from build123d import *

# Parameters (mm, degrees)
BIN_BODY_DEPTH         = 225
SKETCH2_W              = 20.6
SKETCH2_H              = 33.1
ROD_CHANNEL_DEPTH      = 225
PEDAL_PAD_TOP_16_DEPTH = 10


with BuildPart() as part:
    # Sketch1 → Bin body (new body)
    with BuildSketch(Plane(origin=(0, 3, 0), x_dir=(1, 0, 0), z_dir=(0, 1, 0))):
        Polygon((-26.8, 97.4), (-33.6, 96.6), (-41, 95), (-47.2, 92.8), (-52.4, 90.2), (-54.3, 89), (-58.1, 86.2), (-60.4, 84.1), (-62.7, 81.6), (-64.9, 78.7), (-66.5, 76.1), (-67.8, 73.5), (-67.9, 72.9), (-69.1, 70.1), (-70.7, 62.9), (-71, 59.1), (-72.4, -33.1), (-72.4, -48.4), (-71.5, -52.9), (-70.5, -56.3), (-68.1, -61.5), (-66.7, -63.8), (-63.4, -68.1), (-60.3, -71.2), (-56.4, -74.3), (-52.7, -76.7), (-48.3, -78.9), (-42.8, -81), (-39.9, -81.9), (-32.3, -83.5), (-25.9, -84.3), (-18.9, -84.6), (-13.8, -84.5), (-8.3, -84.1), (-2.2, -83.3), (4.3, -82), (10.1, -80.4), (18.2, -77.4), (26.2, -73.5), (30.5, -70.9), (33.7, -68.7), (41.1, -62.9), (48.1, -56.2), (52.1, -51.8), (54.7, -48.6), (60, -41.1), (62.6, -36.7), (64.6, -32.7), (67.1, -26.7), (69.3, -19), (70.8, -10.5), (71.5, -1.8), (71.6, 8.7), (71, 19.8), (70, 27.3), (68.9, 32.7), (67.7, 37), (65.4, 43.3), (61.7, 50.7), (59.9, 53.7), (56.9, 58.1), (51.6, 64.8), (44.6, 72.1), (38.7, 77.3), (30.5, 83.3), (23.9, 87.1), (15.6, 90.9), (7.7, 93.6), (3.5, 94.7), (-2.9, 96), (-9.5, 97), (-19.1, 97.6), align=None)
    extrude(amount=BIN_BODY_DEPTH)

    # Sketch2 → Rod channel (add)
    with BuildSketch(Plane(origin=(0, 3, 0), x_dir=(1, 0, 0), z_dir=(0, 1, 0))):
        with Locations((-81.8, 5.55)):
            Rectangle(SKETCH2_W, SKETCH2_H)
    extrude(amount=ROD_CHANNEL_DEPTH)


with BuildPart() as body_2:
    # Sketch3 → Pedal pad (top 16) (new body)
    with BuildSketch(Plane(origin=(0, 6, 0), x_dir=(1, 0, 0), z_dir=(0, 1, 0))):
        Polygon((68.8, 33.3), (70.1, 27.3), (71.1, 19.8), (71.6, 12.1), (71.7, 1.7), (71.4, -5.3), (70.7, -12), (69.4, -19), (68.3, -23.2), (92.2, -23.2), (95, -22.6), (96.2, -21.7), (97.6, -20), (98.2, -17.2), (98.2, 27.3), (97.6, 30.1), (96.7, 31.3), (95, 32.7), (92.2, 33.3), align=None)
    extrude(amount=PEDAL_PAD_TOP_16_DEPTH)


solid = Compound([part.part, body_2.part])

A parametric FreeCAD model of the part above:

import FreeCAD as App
import Part
import Sketcher
from FreeCAD import Vector
Q = App.Units.Quantity


def add_polygon(sketch, points):
    """Adds a closed chain of lines whose ends are joined by coincident constraints."""
    first, n = sketch.GeometryCount, len(points)
    for a, b in zip(points, points[1:] + points[:1]):
        sketch.addGeometry(Part.LineSegment(App.Vector(*a, 0), App.Vector(*b, 0)), False)
    for i in range(n):
        sketch.addConstraint(Sketcher.Constraint("Coincident", first + i, 2, first + (i + 1) % n, 1))

doc = App.newDocument("Part")
body = doc.addObject("PartDesign::Body", "Body")

sketch1 = body.newObject("Sketcher::SketchObject", "Sketch")
sketch1.AttachmentSupport = (doc.getObject("XZ_Plane"), [""])
sketch1.MapMode = "FlatFace"
sketch1.AttachmentOffset = App.Placement(Vector(0, 0, -3), App.Rotation())
add_polygon(sketch1, [(-26.8, -97.4), (-33.6, -96.6), (-41, -95), (-47.2, -92.8), (-52.4, -90.2), (-54.3, -89), (-58.1, -86.2), (-60.4, -84.1), (-62.7, -81.6), (-64.9, -78.7), (-66.5, -76.1), (-67.8, -73.5), (-67.9, -72.9), (-69.1, -70.1), (-70.7, -62.9), (-71, -59.1), (-72.4, 33.1), (-72.4, 48.4), (-71.5, 52.9), (-70.5, 56.3), (-68.1, 61.5), (-66.7, 63.8), (-63.4, 68.1), (-60.3, 71.2), (-56.4, 74.3), (-52.7, 76.7), (-48.3, 78.9), (-42.8, 81), (-39.9, 81.9), (-32.3, 83.5), (-25.9, 84.3), (-18.9, 84.6), (-13.8, 84.5), (-8.3, 84.1), (-2.2, 83.3), (4.3, 82), (10.1, 80.4), (18.2, 77.4), (26.2, 73.5), (30.5, 70.9), (33.7, 68.7), (41.1, 62.9), (48.1, 56.2), (52.1, 51.8), (54.7, 48.6), (60, 41.1), (62.6, 36.7), (64.6, 32.7), (67.1, 26.7), (69.3, 19), (70.8, 10.5), (71.5, 1.8), (71.6, -8.7), (71, -19.8), (70, -27.3), (68.9, -32.7), (67.7, -37), (65.4, -43.3), (61.7, -50.7), (59.9, -53.7), (56.9, -58.1), (51.6, -64.8), (44.6, -72.1), (38.7, -77.3), (30.5, -83.3), (23.9, -87.1), (15.6, -90.9), (7.7, -93.6), (3.5, -94.7), (-2.9, -96), (-9.5, -97), (-19.1, -97.6)])
sketch1.addConstraint([
    Sketcher.Constraint("Vertical", 16),
    Sketcher.Constraint("Perpendicular", 10, 25),
    Sketcher.Constraint("Perpendicular", 17, 34),
    Sketcher.Constraint("Perpendicular", 25, 46),
    Sketcher.Constraint("Perpendicular", 3, 57),
    Sketcher.Constraint("Vertical", 38, 2, 63, 2),
    Sketcher.Constraint("Angle", 22, Q("45 deg")),
    Sketcher.Constraint("DistanceY", 16, 1, 16, 2, Q("15.3 mm")),
    Sketcher.Constraint("DistanceX", 1, 2, -1, 1, Q("41 mm")),
    Sketcher.Constraint("DistanceY", 1, 2, -1, 1, Q("95 mm")),
    Sketcher.Constraint("DistanceY", 4, 2, -1, 1, Q("89 mm")),
    Sketcher.Constraint("DistanceX", 14, 2, -1, 1, Q("71 mm")),
    Sketcher.Constraint("DistanceY", -1, 1, 26, 2, Q("81 mm")),
    Sketcher.Constraint("DistanceY", -1, 1, 34, 2, Q("82 mm")),
    Sketcher.Constraint("DistanceX", -1, 1, 44, 2, Q("60 mm")),
    Sketcher.Constraint("DistanceY", -1, 1, 48, 2, Q("19 mm")),
    Sketcher.Constraint("DistanceX", -1, 1, 52, 2, Q("71 mm")),
    Sketcher.Constraint("DistanceX", -1, 1, 53, 2, Q("70 mm")),
    Sketcher.Constraint("DistanceY", 55, 2, -1, 1, Q("37 mm")),
    Sketcher.Constraint("DistanceY", 68, 2, -1, 1, Q("96 mm")),
    Sketcher.Constraint("DistanceY", 69, 2, -1, 1, Q("97 mm")),
    Sketcher.Constraint("Distance", 37, Q("8.9 mm")),
    Sketcher.Constraint("Distance", 47, Q("6.5 mm")),
    Sketcher.Constraint("DistanceX", 0, 2, -1, 1, Q("33.6 mm")),
    Sketcher.Constraint("DistanceY", 0, 2, -1, 1, Q("96.6 mm")),
    Sketcher.Constraint("DistanceX", 2, 2, -1, 1, Q("47.2 mm")),
    Sketcher.Constraint("DistanceY", 2, 2, -1, 1, Q("92.8 mm")),
    Sketcher.Constraint("DistanceX", 3, 2, -1, 1, Q("52.4 mm")),
    Sketcher.Constraint("DistanceY", 3, 2, -1, 1, Q("90.2 mm")),
    Sketcher.Constraint("DistanceX", 4, 2, -1, 1, Q("54.3 mm")),
    Sketcher.Constraint("DistanceX", 5, 2, -1, 1, Q("58.1 mm")),
    Sketcher.Constraint("DistanceY", 5, 2, -1, 1, Q("86.2 mm")),
    Sketcher.Constraint("DistanceX", 6, 2, -1, 1, Q("60.4 mm")),
    Sketcher.Constraint("DistanceY", 6, 2, -1, 1, Q("84.1 mm")),
    Sketcher.Constraint("DistanceX", 7, 2, -1, 1, Q("62.7 mm")),
    Sketcher.Constraint("DistanceY", 7, 2, -1, 1, Q("81.6 mm")),
    Sketcher.Constraint("DistanceX", 8, 2, -1, 1, Q("64.9 mm")),
    Sketcher.Constraint("DistanceY", 8, 2, -1, 1, Q("78.7 mm")),
    Sketcher.Constraint("DistanceX", 9, 2, -1, 1, Q("66.5 mm")),
    Sketcher.Constraint("DistanceY", 9, 2, -1, 1, Q("76.1 mm")),
    Sketcher.Constraint("DistanceX", 10, 2, -1, 1, Q("67.8 mm")),
    Sketcher.Constraint("DistanceY", 10, 2, -1, 1, Q("73.5 mm")),
    Sketcher.Constraint("DistanceX", 11, 2, -1, 1, Q("67.9 mm")),
    Sketcher.Constraint("DistanceY", 11, 2, -1, 1, Q("72.9 mm")),
    Sketcher.Constraint("DistanceX", 12, 2, -1, 1, Q("69.1 mm")),
    Sketcher.Constraint("DistanceY", 12, 2, -1, 1, Q("70.1 mm")),
    Sketcher.Constraint("DistanceX", 13, 2, -1, 1, Q("70.7 mm")),
    Sketcher.Constraint("DistanceY", 13, 2, -1, 1, Q("62.9 mm")),
    Sketcher.Constraint("DistanceY", 14, 2, -1, 1, Q("59.1 mm")),
    Sketcher.Constraint("DistanceX", 15, 2, -1, 1, Q("72.4 mm")),
    Sketcher.Constraint("DistanceY", -1, 1, 15, 2, Q("33.1 mm")),
    Sketcher.Constraint("DistanceX", 17, 2, -1, 1, Q("71.5 mm")),
    Sketcher.Constraint("DistanceY", -1, 1, 17, 2, Q("52.9 mm")),
    Sketcher.Constraint("DistanceX", 18, 2, -1, 1, Q("70.5 mm")),
    Sketcher.Constraint("DistanceY", -1, 1, 18, 2, Q("56.3 mm")),
    Sketcher.Constraint("DistanceX", 19, 2, -1, 1, Q("68.1 mm")),
    Sketcher.Constraint("DistanceY", -1, 1, 19, 2, Q("61.5 mm")),
    Sketcher.Constraint("DistanceX", 20, 2, -1, 1, Q("66.7 mm")),
    Sketcher.Constraint("DistanceY", -1, 1, 20, 2, Q("63.8 mm")),
    Sketcher.Constraint("DistanceX", 21, 2, -1, 1, Q("63.4 mm")),
    Sketcher.Constraint("DistanceY", -1, 1, 21, 2, Q("68.1 mm")),
    Sketcher.Constraint("DistanceX", 22, 2, -1, 1, Q("60.3 mm")),
    Sketcher.Constraint("DistanceX", 23, 2, -1, 1, Q("56.4 mm")),
    Sketcher.Constraint("DistanceY", -1, 1, 23, 2, Q("74.3 mm")),
    Sketcher.Constraint("DistanceX", 24, 2, -1, 1, Q("52.7 mm")),
    Sketcher.Constraint("DistanceY", -1, 1, 24, 2, Q("76.7 mm")),
    Sketcher.Constraint("DistanceX", 25, 2, -1, 1, Q("48.3 mm")),
    Sketcher.Constraint("DistanceX", 26, 2, -1, 1, Q("42.8 mm")),
    Sketcher.Constraint("DistanceX", 27, 2, -1, 1, Q("39.9 mm")),
    Sketcher.Constraint("DistanceY", -1, 1, 27, 2, Q("81.9 mm")),
    Sketcher.Constraint("DistanceX", 28, 2, -1, 1, Q("32.3 mm")),
    Sketcher.Constraint("DistanceY", -1, 1, 28, 2, Q("83.5 mm")),
    Sketcher.Constraint("DistanceX", 29, 2, -1, 1, Q("25.9 mm")),
    Sketcher.Constraint("DistanceY", -1, 1, 29, 2, Q("84.3 mm")),
    Sketcher.Constraint("DistanceX", 30, 2, -1, 1, Q("18.9 mm")),
    Sketcher.Constraint("DistanceY", -1, 1, 30, 2, Q("84.6 mm")),
    Sketcher.Constraint("DistanceX", 31, 2, -1, 1, Q("13.8 mm")),
    Sketcher.Constraint("DistanceY", -1, 1, 31, 2, Q("84.5 mm")),
    Sketcher.Constraint("DistanceX", 32, 2, -1, 1, Q("8.3 mm")),
    Sketcher.Constraint("DistanceY", -1, 1, 32, 2, Q("84.1 mm")),
    Sketcher.Constraint("DistanceX", 33, 2, -1, 1, Q("2.2 mm")),
    Sketcher.Constraint("DistanceY", -1, 1, 33, 2, Q("83.3 mm")),
    Sketcher.Constraint("DistanceX", -1, 1, 35, 2, Q("10.1 mm")),
    Sketcher.Constraint("DistanceY", -1, 1, 35, 2, Q("80.4 mm")),
    Sketcher.Constraint("DistanceX", -1, 1, 36, 2, Q("18.2 mm")),
    Sketcher.Constraint("DistanceY", -1, 1, 36, 2, Q("77.4 mm")),
    Sketcher.Constraint("DistanceX", -1, 1, 37, 2, Q("26.2 mm")),
    Sketcher.Constraint("DistanceX", -1, 1, 38, 2, Q("30.5 mm")),
    Sketcher.Constraint("DistanceY", -1, 1, 38, 2, Q("70.9 mm")),
    Sketcher.Constraint("DistanceX", -1, 1, 39, 2, Q("33.7 mm")),
    Sketcher.Constraint("DistanceY", -1, 1, 39, 2, Q("68.7 mm")),
    Sketcher.Constraint("DistanceX", -1, 1, 40, 2, Q("41.1 mm")),
    Sketcher.Constraint("DistanceY", -1, 1, 40, 2, Q("62.9 mm")),
    Sketcher.Constraint("DistanceX", -1, 1, 41, 2, Q("48.1 mm")),
    Sketcher.Constraint("DistanceY", -1, 1, 41, 2, Q("56.2 mm")),
    Sketcher.Constraint("DistanceX", -1, 1, 42, 2, Q("52.1 mm")),
    Sketcher.Constraint("DistanceY", -1, 1, 42, 2, Q("51.8 mm")),
    Sketcher.Constraint("DistanceX", -1, 1, 43, 2, Q("54.7 mm")),
    Sketcher.Constraint("DistanceY", -1, 1, 43, 2, Q("48.6 mm")),
    Sketcher.Constraint("DistanceY", -1, 1, 44, 2, Q("41.1 mm")),
    Sketcher.Constraint("DistanceX", -1, 1, 45, 2, Q("62.6 mm")),
    Sketcher.Constraint("DistanceY", -1, 1, 45, 2, Q("36.7 mm")),
    Sketcher.Constraint("DistanceX", -1, 1, 46, 2, Q("64.6 mm")),
    Sketcher.Constraint("DistanceX", -1, 1, 47, 2, Q("67.1 mm")),
    Sketcher.Constraint("DistanceX", -1, 1, 48, 2, Q("69.3 mm")),
    Sketcher.Constraint("DistanceX", -1, 1, 49, 2, Q("70.8 mm")),
    Sketcher.Constraint("DistanceY", -1, 1, 49, 2, Q("10.5 mm")),
    Sketcher.Constraint("DistanceX", -1, 1, 50, 2, Q("71.5 mm")),
    Sketcher.Constraint("DistanceY", -1, 1, 50, 2, Q("1.8 mm")),
    Sketcher.Constraint("DistanceX", -1, 1, 51, 2, Q("71.6 mm")),
    Sketcher.Constraint("DistanceY", 51, 2, -1, 1, Q("8.7 mm")),
    Sketcher.Constraint("DistanceY", 52, 2, -1, 1, Q("19.8 mm")),
    Sketcher.Constraint("DistanceY", 53, 2, -1, 1, Q("27.3 mm")),
    Sketcher.Constraint("DistanceX", -1, 1, 54, 2, Q("68.9 mm")),
    Sketcher.Constraint("DistanceY", 54, 2, -1, 1, Q("32.7 mm")),
    Sketcher.Constraint("DistanceX", -1, 1, 55, 2, Q("67.7 mm")),
    Sketcher.Constraint("DistanceX", -1, 1, 56, 2, Q("65.4 mm")),
    Sketcher.Constraint("DistanceY", 56, 2, -1, 1, Q("43.3 mm")),
    Sketcher.Constraint("DistanceX", -1, 1, 57, 2, Q("61.7 mm")),
    Sketcher.Constraint("DistanceX", -1, 1, 58, 2, Q("59.9 mm")),
    Sketcher.Constraint("DistanceY", 58, 2, -1, 1, Q("53.7 mm")),
    Sketcher.Constraint("DistanceX", -1, 1, 59, 2, Q("56.9 mm")),
    Sketcher.Constraint("DistanceY", 59, 2, -1, 1, Q("58.1 mm")),
    Sketcher.Constraint("DistanceX", -1, 1, 60, 2, Q("51.6 mm")),
    Sketcher.Constraint("DistanceY", 60, 2, -1, 1, Q("64.8 mm")),
    Sketcher.Constraint("DistanceX", -1, 1, 61, 2, Q("44.6 mm")),
    Sketcher.Constraint("DistanceY", 61, 2, -1, 1, Q("72.1 mm")),
    Sketcher.Constraint("DistanceX", -1, 1, 62, 2, Q("38.7 mm")),
    Sketcher.Constraint("DistanceY", 62, 2, -1, 1, Q("77.3 mm")),
    Sketcher.Constraint("DistanceY", 63, 2, -1, 1, Q("83.3 mm")),
    Sketcher.Constraint("DistanceX", -1, 1, 64, 2, Q("23.9 mm")),
    Sketcher.Constraint("DistanceY", 64, 2, -1, 1, Q("87.1 mm")),
    Sketcher.Constraint("DistanceX", -1, 1, 65, 2, Q("15.6 mm")),
    Sketcher.Constraint("DistanceY", 65, 2, -1, 1, Q("90.9 mm")),
    Sketcher.Constraint("DistanceX", -1, 1, 66, 2, Q("7.7 mm")),
    Sketcher.Constraint("DistanceY", 66, 2, -1, 1, Q("93.6 mm")),
    Sketcher.Constraint("DistanceX", -1, 1, 67, 2, Q("3.5 mm")),
    Sketcher.Constraint("DistanceY", 67, 2, -1, 1, Q("94.7 mm")),
    Sketcher.Constraint("DistanceX", 68, 2, -1, 1, Q("2.9 mm")),
    Sketcher.Constraint("DistanceX", 69, 2, -1, 1, Q("9.5 mm")),
    Sketcher.Constraint("DistanceX", 70, 2, -1, 1, Q("19.1 mm")),
    Sketcher.Constraint("DistanceY", 70, 2, -1, 1, Q("97.6 mm")),
    Sketcher.Constraint("DistanceX", 71, 2, -1, 1, Q("26.8 mm")),
    Sketcher.Constraint("DistanceY", 71, 2, -1, 1, Q("97.4 mm")),
])
pad1 = body.newObject("PartDesign::Pad", "Pad")
pad1.Profile = sketch1
pad1.Length = 225
pad1.Reversed = True

sketch2 = body.newObject("Sketcher::SketchObject", "Sketch001")
sketch2.AttachmentSupport = (doc.getObject("XZ_Plane"), [""])
sketch2.MapMode = "FlatFace"
sketch2.AttachmentOffset = App.Placement(Vector(0, 0, -3), App.Rotation())
add_polygon(sketch2, [(-92, -22), (-92, 11), (-72, 11), (-72, -22)])
sketch2.addConstraint([
    Sketcher.Constraint("Vertical", 0),
    Sketcher.Constraint("Horizontal", 1),
    Sketcher.Constraint("Vertical", 2),
    Sketcher.Constraint("Horizontal", 3),
    Sketcher.Constraint("DistanceX", 1, 1, 1, 2, Q("20.6 mm")),
    Sketcher.Constraint("DistanceY", 0, 1, 0, 2, Q("33.1 mm")),
    Sketcher.Constraint("DistanceY", -1, 1, 0, 2, Q("11 mm")),
    Sketcher.Constraint("DistanceX", 0, 2, -1, 1, Q("92.1 mm")),
])
pad2 = body.newObject("PartDesign::Pad", "Pad001")
pad2.Profile = sketch2
pad2.Length = 225
pad2.Reversed = True
body2 = doc.addObject("PartDesign::Body", "Body001")

sketch3 = body2.newObject("Sketcher::SketchObject", "Sketch002")
sketch3.AttachmentSupport = (doc.getObject("XZ_Plane001"), [""])
sketch3.MapMode = "FlatFace"
sketch3.AttachmentOffset = App.Placement(Vector(0, 0, -6), App.Rotation())
add_polygon(sketch3, [(68.8, -33.3), (70.1, -27.3), (71.1, -19.8), (71.6, -12.1), (71.7, -1.7), (71.4, 5.3), (70.7, 12), (69.4, 19), (68.3, 23.2), (92.2, 23.2), (95, 22.6), (96.2, 21.7), (97.6, 20), (98.2, 17.2), (98.2, -27.3), (97.6, -30.1), (96.7, -31.3), (95, -32.7), (92.2, -33.3)])
sketch3.addConstraint([
    Sketcher.Constraint("Horizontal", 8),
    Sketcher.Constraint("Vertical", 13),
    Sketcher.Constraint("Horizontal", 18),
    Sketcher.Constraint("Perpendicular", 9, 14),
    Sketcher.Constraint("Perpendicular", 10, 15),
    Sketcher.Constraint("Perpendicular", 11, 16),
    Sketcher.Constraint("Perpendicular", 12, 17),
    Sketcher.Constraint("Horizontal", 0, 2, 13, 2),
    Sketcher.Constraint("Vertical", 11, 2, 14, 2),
    Sketcher.Constraint("Vertical", 9, 2, 16, 2),
    Sketcher.Constraint("Vertical", 8, 2, 17, 2),
    Sketcher.Constraint("Equal", 9, 12),
    Sketcher.Constraint("Equal", 12, 14),
    Sketcher.Constraint("Equal", 10, 15),
    Sketcher.Constraint("Equal", 11, 16),
    Sketcher.Constraint("DistanceX", 8, 1, 8, 2, Q("23.9 mm")),
    Sketcher.Constraint("DistanceX", 18, 2, 18, 1, Q("23.4 mm")),
    Sketcher.Constraint("DistanceY", 13, 2, 13, 1, Q("44.5 mm")),
    Sketcher.Constraint("DistanceY", -1, 1, 5, 2, Q("12 mm")),
    Sketcher.Constraint("DistanceY", -1, 1, 6, 2, Q("19 mm")),
    Sketcher.Constraint("DistanceX", -1, 1, 9, 2, Q("95 mm")),
    Sketcher.Constraint("DistanceY", -1, 1, 11, 2, Q("20 mm")),
    Sketcher.Constraint("DistanceX", 0, 2, 1, 2, Q("1 mm")),
    Sketcher.Constraint("DistanceY", 3, 2, 4, 2, Q("7 mm")),
    Sketcher.Constraint("DistanceX", 5, 2, 3, 2, Q("1 mm")),
    Sketcher.Constraint("DistanceX", 6, 2, 4, 2, Q("2 mm")),
    Sketcher.Constraint("DistanceX", 8, 2, 10, 2, Q("4 mm")),
    Sketcher.Constraint("DistanceX", 10, 2, 12, 2, Q("2 mm")),
    Sketcher.Constraint("DistanceX", 2, 2, 14, 2, Q("26 mm")),
    Sketcher.Constraint("DistanceY", 14, 2, 2, 2, Q("18 mm")),
    Sketcher.Constraint("Distance", 10, Q("1.5 mm")),
    Sketcher.Constraint("DistanceX", -1, 1, 0, 2, Q("70.1 mm")),
    Sketcher.Constraint("DistanceY", 0, 2, -1, 1, Q("27.3 mm")),
    Sketcher.Constraint("DistanceY", 1, 2, -1, 1, Q("19.8 mm")),
    Sketcher.Constraint("DistanceX", -1, 1, 2, 2, Q("71.6 mm")),
    Sketcher.Constraint("DistanceX", -1, 1, 3, 2, Q("71.7 mm")),
    Sketcher.Constraint("DistanceY", 3, 2, -1, 1, Q("1.7 mm")),
    Sketcher.Constraint("DistanceX", -1, 1, 4, 2, Q("71.4 mm")),
])
pad3 = body2.newObject("PartDesign::Pad", "Pad002")
pad3.Profile = sketch3
pad3.Length = 10
pad3.Reversed = True

doc.recompute()
